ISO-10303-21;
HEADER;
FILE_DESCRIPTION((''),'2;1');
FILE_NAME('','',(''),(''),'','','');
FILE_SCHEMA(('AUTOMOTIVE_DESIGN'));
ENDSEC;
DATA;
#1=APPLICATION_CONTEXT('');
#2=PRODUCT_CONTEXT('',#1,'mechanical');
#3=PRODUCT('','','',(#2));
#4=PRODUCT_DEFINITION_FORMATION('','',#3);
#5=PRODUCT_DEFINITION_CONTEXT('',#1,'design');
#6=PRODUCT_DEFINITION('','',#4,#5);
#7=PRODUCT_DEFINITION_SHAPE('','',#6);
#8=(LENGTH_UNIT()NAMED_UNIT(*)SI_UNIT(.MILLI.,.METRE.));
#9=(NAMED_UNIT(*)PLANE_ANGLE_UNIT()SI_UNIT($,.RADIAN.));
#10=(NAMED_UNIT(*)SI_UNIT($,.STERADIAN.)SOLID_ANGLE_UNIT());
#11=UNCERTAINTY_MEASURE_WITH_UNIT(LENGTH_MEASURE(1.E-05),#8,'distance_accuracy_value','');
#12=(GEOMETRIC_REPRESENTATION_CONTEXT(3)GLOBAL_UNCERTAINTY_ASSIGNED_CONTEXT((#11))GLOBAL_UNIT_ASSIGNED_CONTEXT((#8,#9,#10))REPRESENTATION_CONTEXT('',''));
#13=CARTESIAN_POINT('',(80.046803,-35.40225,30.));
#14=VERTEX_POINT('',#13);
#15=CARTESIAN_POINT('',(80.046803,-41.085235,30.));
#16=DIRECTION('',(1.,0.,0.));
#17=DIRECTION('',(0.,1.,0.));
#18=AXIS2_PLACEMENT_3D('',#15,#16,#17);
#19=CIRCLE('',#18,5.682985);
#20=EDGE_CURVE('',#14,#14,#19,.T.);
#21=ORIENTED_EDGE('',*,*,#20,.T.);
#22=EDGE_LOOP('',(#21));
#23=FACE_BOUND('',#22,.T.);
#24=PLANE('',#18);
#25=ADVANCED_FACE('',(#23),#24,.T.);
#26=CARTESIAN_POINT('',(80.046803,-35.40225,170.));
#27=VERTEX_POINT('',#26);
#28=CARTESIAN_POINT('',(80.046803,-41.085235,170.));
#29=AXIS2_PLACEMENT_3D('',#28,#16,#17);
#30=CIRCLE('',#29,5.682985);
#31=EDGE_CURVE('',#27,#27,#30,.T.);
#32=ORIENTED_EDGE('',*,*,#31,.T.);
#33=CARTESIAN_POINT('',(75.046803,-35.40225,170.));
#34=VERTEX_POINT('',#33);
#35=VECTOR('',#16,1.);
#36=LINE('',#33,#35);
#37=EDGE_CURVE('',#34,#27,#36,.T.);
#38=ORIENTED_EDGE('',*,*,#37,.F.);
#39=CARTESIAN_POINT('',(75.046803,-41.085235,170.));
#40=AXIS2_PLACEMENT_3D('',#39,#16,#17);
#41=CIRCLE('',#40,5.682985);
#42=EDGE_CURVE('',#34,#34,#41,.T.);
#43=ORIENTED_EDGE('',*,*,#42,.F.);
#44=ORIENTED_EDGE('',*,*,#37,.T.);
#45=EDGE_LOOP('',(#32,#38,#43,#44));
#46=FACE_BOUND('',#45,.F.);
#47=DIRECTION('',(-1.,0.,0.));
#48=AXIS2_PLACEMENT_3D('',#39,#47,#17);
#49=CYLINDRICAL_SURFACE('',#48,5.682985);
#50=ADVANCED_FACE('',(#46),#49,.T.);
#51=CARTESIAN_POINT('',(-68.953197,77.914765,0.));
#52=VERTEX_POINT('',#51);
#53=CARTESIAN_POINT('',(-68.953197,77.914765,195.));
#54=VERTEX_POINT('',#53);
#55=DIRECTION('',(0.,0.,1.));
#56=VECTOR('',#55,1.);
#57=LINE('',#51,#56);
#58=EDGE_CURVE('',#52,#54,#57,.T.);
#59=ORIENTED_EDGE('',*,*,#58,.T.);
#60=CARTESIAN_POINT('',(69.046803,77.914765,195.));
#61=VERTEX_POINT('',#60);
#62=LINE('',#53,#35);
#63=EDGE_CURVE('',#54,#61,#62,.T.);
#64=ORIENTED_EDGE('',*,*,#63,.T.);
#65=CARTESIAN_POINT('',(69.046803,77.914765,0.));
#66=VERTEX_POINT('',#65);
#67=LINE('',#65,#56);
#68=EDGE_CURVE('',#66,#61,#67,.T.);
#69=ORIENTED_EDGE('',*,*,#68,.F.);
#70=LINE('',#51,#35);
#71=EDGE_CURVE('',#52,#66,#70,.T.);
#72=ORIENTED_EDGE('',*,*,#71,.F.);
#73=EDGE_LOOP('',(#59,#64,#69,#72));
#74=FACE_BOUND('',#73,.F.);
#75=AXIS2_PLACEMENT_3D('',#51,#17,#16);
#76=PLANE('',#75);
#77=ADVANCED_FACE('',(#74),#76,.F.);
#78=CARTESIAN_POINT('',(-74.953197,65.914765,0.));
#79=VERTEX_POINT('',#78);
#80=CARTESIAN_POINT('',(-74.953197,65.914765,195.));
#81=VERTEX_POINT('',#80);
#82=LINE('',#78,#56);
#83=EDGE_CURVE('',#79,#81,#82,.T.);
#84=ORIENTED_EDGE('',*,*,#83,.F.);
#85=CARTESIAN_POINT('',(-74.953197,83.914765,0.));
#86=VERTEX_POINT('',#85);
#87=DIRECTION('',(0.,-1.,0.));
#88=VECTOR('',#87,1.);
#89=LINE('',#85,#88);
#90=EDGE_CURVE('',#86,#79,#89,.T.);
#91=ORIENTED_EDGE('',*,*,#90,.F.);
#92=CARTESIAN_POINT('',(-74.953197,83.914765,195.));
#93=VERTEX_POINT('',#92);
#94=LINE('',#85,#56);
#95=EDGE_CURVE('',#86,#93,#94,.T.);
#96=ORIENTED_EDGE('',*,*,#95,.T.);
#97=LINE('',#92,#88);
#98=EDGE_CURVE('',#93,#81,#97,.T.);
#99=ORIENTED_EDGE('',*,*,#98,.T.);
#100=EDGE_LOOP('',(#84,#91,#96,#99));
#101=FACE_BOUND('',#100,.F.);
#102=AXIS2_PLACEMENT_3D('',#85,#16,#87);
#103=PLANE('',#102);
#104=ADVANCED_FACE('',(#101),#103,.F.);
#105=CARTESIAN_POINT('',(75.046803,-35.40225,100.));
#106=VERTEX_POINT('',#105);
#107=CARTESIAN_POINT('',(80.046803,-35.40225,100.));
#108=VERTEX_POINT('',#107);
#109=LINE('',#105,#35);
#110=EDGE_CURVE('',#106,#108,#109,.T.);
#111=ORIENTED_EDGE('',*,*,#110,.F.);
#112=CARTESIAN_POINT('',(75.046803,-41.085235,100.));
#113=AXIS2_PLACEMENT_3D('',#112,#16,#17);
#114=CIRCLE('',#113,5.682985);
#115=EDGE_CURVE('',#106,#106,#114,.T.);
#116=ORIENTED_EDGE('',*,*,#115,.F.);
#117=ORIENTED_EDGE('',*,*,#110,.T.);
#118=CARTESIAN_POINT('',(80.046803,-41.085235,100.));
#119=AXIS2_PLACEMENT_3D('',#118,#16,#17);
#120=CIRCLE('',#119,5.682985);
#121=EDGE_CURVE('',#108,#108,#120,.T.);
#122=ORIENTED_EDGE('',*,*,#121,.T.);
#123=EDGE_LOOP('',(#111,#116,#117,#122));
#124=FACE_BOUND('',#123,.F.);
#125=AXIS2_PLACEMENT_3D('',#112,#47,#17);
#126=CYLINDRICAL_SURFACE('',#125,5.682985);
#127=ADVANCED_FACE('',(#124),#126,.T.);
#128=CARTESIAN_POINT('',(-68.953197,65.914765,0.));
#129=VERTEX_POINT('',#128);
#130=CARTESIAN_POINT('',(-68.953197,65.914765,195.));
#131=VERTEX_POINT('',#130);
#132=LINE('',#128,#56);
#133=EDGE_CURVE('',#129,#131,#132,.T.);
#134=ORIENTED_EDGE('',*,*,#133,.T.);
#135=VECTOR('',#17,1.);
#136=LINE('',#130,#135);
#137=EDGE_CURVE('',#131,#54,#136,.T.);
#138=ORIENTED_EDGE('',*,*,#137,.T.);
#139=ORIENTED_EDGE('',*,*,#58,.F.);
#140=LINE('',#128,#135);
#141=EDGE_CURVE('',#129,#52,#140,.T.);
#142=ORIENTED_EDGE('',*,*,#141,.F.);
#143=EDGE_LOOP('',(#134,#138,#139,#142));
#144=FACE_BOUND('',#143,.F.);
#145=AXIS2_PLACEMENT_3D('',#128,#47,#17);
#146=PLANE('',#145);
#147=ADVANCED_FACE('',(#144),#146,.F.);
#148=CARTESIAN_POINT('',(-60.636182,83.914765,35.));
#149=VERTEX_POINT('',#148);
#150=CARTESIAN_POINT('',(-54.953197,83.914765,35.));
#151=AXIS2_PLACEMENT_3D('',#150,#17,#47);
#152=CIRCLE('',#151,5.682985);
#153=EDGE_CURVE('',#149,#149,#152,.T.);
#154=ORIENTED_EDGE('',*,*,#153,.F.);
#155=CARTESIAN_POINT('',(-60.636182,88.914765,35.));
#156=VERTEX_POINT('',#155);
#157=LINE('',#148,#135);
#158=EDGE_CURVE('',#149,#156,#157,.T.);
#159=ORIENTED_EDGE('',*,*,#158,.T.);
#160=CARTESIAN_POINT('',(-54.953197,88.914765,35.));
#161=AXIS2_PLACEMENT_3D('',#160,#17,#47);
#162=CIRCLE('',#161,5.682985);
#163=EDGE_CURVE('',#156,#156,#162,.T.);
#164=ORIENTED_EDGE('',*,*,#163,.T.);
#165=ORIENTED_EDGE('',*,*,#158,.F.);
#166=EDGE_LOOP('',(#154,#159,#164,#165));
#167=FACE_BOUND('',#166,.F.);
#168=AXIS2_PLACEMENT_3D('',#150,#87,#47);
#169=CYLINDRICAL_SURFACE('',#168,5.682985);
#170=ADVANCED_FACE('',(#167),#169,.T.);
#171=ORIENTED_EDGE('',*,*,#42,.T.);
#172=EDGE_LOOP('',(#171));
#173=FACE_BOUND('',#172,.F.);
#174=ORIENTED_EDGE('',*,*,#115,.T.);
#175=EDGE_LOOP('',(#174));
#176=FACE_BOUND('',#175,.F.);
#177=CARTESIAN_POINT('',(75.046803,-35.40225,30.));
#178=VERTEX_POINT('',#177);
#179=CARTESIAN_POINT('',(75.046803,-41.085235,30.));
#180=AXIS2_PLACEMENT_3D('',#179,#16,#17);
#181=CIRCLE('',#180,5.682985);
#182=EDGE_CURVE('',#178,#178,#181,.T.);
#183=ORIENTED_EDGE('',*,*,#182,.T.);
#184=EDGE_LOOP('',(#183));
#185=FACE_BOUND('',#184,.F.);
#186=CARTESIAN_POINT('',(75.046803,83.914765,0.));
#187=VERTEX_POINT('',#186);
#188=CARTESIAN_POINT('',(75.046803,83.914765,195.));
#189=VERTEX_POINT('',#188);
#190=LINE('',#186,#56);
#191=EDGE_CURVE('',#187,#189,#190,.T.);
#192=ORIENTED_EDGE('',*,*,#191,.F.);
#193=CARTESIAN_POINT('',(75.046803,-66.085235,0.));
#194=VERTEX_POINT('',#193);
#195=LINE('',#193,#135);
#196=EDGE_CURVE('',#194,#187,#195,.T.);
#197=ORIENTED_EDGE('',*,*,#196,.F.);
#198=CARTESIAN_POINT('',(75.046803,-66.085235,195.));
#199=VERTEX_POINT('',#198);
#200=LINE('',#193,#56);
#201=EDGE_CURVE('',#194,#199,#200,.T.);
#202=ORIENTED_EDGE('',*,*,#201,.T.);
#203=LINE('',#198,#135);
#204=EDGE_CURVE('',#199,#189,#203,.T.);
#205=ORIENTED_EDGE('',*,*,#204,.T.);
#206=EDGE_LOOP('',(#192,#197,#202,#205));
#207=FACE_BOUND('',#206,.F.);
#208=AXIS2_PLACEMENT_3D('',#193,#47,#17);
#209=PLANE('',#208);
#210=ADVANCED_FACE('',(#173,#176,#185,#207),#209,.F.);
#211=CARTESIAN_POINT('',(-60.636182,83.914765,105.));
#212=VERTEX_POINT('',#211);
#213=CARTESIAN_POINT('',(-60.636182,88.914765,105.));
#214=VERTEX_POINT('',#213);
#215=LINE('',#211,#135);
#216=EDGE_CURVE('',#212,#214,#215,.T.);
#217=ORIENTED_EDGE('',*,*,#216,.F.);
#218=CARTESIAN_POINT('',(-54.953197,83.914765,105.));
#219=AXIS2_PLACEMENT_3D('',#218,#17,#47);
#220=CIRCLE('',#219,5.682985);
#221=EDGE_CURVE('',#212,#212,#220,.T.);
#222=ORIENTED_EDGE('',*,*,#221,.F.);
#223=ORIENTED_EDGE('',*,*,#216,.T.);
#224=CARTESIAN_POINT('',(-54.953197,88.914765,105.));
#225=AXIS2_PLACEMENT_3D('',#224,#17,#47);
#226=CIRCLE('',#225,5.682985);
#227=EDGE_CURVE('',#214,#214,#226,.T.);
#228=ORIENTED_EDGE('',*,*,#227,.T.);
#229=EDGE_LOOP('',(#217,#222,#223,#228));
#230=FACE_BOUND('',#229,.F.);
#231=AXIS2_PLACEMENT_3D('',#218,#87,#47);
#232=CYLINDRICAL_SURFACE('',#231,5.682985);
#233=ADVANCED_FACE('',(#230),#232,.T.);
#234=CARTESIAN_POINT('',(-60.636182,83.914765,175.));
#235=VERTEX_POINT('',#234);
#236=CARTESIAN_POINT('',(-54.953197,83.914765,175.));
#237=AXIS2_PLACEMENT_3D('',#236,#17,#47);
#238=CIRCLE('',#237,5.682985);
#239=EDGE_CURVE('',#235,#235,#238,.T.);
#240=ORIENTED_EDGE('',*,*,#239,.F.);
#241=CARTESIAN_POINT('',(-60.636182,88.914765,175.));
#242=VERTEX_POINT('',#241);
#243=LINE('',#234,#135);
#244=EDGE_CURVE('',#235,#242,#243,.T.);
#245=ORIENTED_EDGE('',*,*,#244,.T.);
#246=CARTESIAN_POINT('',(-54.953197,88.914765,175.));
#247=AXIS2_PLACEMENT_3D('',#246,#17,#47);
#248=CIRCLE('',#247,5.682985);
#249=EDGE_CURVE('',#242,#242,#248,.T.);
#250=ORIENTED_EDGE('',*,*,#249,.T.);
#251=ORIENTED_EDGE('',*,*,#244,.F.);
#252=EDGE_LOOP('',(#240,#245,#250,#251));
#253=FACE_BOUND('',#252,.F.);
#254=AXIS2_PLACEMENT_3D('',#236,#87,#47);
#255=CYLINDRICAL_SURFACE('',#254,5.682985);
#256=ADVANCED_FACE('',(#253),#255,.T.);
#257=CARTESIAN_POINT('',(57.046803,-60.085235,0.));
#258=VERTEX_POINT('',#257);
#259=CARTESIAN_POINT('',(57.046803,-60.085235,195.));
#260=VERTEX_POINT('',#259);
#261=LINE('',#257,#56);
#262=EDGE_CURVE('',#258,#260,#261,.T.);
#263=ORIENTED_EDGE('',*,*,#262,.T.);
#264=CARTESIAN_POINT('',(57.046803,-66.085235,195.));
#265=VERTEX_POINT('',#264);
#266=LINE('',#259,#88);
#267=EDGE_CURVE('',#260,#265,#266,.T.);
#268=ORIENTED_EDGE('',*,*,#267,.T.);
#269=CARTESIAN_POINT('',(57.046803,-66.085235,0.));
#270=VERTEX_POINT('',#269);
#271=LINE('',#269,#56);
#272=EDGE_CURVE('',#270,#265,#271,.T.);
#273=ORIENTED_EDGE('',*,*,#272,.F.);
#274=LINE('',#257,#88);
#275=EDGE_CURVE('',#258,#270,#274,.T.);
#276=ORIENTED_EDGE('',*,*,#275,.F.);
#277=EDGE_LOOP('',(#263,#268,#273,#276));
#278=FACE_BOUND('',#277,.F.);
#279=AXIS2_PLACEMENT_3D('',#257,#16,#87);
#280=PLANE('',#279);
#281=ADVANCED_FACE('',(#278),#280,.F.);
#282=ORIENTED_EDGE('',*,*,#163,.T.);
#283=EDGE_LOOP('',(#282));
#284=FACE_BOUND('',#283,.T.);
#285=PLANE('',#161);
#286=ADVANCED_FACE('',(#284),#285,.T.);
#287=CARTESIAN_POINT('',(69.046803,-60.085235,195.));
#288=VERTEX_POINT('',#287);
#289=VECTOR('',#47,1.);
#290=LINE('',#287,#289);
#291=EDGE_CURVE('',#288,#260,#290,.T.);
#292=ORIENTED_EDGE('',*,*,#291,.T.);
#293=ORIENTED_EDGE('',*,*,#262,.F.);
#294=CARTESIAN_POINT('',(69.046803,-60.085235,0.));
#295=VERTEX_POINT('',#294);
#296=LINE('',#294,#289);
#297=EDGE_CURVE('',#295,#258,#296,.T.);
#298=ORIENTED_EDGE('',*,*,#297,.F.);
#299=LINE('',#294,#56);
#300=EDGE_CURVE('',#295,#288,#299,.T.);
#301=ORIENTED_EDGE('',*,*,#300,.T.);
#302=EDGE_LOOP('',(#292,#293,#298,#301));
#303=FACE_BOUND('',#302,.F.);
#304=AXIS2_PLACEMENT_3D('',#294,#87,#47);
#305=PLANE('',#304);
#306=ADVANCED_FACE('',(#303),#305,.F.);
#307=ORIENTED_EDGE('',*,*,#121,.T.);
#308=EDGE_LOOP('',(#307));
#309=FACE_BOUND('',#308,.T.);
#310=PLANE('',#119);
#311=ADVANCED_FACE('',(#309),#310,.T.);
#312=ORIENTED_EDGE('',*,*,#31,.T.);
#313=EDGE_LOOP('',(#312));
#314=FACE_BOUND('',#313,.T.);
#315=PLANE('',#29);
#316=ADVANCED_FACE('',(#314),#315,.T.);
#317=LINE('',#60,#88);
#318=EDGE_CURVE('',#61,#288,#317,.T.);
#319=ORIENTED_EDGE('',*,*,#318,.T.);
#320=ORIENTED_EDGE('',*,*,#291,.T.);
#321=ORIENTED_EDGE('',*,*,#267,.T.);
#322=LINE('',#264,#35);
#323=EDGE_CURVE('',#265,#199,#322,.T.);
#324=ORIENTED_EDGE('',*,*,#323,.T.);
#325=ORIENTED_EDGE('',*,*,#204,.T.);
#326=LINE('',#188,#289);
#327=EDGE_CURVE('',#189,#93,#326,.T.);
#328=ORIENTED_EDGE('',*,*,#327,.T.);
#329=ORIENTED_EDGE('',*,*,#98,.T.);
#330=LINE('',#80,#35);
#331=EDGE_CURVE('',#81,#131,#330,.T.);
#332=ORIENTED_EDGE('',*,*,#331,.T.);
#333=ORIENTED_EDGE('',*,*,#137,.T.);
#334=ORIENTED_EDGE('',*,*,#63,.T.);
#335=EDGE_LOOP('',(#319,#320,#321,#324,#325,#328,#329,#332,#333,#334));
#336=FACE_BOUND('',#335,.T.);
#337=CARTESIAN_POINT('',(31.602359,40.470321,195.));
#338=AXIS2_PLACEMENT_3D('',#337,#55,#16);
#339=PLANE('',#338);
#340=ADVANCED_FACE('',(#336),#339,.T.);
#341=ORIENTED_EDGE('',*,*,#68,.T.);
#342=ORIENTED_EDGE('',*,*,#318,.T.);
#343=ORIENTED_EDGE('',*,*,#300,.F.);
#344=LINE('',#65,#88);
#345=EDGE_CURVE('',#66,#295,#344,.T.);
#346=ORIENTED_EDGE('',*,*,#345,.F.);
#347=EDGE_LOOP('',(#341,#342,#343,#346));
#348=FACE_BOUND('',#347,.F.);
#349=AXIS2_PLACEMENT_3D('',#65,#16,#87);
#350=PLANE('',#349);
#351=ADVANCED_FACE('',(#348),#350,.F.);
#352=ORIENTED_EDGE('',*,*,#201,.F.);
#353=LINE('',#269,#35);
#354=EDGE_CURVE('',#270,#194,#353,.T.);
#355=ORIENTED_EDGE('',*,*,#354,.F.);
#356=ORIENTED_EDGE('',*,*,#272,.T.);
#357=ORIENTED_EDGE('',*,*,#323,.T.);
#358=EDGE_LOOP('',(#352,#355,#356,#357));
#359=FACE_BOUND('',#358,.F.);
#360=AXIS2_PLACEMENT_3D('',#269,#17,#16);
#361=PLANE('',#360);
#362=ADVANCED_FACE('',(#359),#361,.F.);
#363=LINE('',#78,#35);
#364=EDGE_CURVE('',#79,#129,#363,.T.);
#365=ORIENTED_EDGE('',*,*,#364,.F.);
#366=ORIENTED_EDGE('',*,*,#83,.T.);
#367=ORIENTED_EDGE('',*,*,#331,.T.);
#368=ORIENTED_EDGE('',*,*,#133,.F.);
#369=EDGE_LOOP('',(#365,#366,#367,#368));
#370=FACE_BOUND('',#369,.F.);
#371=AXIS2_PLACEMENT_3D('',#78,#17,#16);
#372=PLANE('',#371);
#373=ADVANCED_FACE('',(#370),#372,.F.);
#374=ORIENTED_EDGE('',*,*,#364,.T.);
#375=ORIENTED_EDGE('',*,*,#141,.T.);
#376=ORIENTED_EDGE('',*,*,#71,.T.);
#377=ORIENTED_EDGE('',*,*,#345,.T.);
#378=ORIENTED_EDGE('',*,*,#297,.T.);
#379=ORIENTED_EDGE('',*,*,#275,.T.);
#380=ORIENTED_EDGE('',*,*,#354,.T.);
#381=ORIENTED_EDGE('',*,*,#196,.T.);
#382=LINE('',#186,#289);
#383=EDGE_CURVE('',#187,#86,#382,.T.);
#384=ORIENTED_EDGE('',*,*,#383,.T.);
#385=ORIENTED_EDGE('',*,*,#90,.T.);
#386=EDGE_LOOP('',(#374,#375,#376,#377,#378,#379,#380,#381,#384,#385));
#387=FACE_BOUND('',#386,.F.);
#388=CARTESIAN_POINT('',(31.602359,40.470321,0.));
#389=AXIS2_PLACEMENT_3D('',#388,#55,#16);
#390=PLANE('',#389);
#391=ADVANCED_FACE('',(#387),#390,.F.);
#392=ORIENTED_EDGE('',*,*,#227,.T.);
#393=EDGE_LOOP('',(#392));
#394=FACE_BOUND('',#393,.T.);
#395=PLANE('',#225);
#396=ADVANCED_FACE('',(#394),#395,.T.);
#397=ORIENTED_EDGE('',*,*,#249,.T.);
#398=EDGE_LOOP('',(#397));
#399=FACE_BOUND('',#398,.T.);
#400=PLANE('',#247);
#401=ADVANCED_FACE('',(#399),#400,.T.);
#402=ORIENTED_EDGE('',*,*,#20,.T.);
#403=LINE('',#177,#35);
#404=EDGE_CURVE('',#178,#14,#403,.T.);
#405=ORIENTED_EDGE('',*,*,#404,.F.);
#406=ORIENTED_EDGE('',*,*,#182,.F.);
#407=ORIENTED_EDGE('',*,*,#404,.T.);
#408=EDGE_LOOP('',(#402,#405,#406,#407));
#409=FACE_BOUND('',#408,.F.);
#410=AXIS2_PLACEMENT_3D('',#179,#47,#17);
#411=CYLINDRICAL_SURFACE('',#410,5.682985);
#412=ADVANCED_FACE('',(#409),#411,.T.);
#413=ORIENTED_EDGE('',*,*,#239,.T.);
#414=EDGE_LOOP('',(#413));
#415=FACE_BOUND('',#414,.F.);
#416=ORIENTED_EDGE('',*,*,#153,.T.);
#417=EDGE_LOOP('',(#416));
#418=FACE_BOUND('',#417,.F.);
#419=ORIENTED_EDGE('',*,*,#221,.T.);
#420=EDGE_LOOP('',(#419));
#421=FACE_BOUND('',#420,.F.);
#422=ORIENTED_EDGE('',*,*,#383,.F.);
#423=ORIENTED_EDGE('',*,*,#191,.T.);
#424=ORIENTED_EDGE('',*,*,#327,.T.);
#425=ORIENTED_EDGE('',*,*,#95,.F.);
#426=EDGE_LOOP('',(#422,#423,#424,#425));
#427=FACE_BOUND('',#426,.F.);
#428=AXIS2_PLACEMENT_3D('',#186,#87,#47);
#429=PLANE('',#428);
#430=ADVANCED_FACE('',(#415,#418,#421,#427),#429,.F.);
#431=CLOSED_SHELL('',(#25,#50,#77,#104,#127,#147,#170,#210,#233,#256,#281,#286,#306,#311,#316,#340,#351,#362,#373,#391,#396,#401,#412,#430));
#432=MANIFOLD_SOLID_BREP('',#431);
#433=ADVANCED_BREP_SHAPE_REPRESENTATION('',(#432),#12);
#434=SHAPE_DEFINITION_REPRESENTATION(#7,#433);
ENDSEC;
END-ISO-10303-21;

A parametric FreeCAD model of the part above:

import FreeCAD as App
import Part
import Sketcher
from FreeCAD import Vector
Q = App.Units.Quantity

doc = App.newDocument("Part")
params = doc.addObject("Spreadsheet::Sheet", "Params")
for row, (alias, value) in enumerate([
    ("sketch1_width", "150 mm"),
    ("sketch1_width2", "6 mm"),
    ("sketch1_width3", "138 mm"),
    ("sketch1_width4", "12 mm"),
    ("pad1_length", "195 mm"),
    ("pad2_length", "5 mm"),
    ("pad3_length", "5 mm"),
], start=1):
    params.set(f"A{row}", alias)
    params.set(f"B{row}", "=" + value)
    params.setAlias(f"B{row}", alias)

body = doc.addObject("PartDesign::Body", "Body")

sketch1 = body.newObject("Sketcher::SketchObject", "Sketch")
sketch1.AttachmentSupport = (doc.getObject("XY_Plane"), [""])
sketch1.MapMode = "FlatFace"
sketch1.addGeometry(Part.LineSegment(Vector(75, 84, 0), Vector(-75, 84, 0)), False)
sketch1.addGeometry(Part.LineSegment(Vector(-75, 84, 0), Vector(-75, 66, 0)), False)
sketch1.addGeometry(Part.LineSegment(Vector(-75, 66, 0), Vector(-69, 66, 0)), False)
sketch1.addGeometry(Part.LineSegment(Vector(-69, 66, 0), Vector(-69, 78, 0)), False)
sketch1.addGeometry(Part.LineSegment(Vector(-69, 78, 0), Vector(69, 78, 0)), False)
sketch1.addGeometry(Part.LineSegment(Vector(69, 78, 0), Vector(69, -60, 0)), False)
sketch1.addGeometry(Part.LineSegment(Vector(69, -60, 0), Vector(57, -60, 0)), False)
sketch1.addGeometry(Part.LineSegment(Vector(57, -60, 0), Vector(57, -66, 0)), False)
sketch1.addGeometry(Part.LineSegment(Vector(57, -66, 0), Vector(75, -66, 0)), False)
sketch1.addGeometry(Part.LineSegment(Vector(75, -66, 0), Vector(75, 84, 0)), False)
sketch1.addConstraint(Sketcher.Constraint("Coincident", 0, 2, 1, 1))
sketch1.addConstraint(Sketcher.Constraint("Coincident", 1, 2, 2, 1))
sketch1.addConstraint(Sketcher.Constraint("Coincident", 2, 2, 3, 1))
sketch1.addConstraint(Sketcher.Constraint("Coincident", 3, 2, 4, 1))
sketch1.addConstraint(Sketcher.Constraint("Coincident", 4, 2, 5, 1))
sketch1.addConstraint(Sketcher.Constraint("Coincident", 5, 2, 6, 1))
sketch1.addConstraint(Sketcher.Constraint("Coincident", 6, 2, 7, 1))
sketch1.addConstraint(Sketcher.Constraint("Coincident", 7, 2, 8, 1))
sketch1.addConstraint(Sketcher.Constraint("Coincident", 8, 2, 9, 1))
sketch1.addConstraint(Sketcher.Constraint("Coincident", 9, 2, 0, 1))
sketch1.addConstraint(Sketcher.Constraint("Horizontal", 0))
sketch1.addConstraint(Sketcher.Constraint("Vertical", 1))
sketch1.addConstraint(Sketcher.Constraint("Horizontal", 2))
sketch1.addConstraint(Sketcher.Constraint("Vertical", 3))
sketch1.addConstraint(Sketcher.Constraint("Horizontal", 4))
sketch1.addConstraint(Sketcher.Constraint("Vertical", 5))
sketch1.addConstraint(Sketcher.Constraint("Horizontal", 6))
sketch1.addConstraint(Sketcher.Constraint("Vertical", 7))
sketch1.addConstraint(Sketcher.Constraint("Horizontal", 8))
sketch1.addConstraint(Sketcher.Constraint("Vertical", 9))
sketch1.addConstraint(Sketcher.Constraint("Equal", 8, 1))
sketch1.addConstraint(Sketcher.Constraint("Equal", 6, 3))
sketch1.addConstraint(Sketcher.Constraint("Equal", 4, 5))
sketch1.addConstraint(Sketcher.Constraint("Equal", 2, 7))
sketch1.addConstraint(Sketcher.Constraint("DistanceX", 0, 2, 0, 1, Q("150 mm")))
sketch1.addConstraint(Sketcher.Constraint("DistanceX", 2, 1, 2, 2, Q("6 mm")))
sketch1.addConstraint(Sketcher.Constraint("DistanceX", 4, 1, 4, 2, Q("138 mm")))
sketch1.addConstraint(Sketcher.Constraint("DistanceX", 6, 2, 6, 1, Q("12 mm")))
sketch1.addConstraint(Sketcher.Constraint("DistanceX", 0, 2, -1, 1, Q("74.953197 mm")))
sketch1.addConstraint(Sketcher.Constraint("DistanceY", -1, 1, 0, 2, Q("83.914765 mm")))
sketch1.setExpression("Constraints[24]", "Params.sketch1_width")
sketch1.setExpression("Constraints[25]", "Params.sketch1_width2")
sketch1.setExpression("Constraints[26]", "Params.sketch1_width3")
sketch1.setExpression("Constraints[27]", "Params.sketch1_width4")
pad1 = body.newObject("PartDesign::Pad", "Pad")
pad1.Profile = sketch1
pad1.setExpression("Length", "Params.pad1_length")

sketch2 = body.newObject("Sketcher::SketchObject", "Sketch001")
sketch2.AttachmentSupport = (doc.getObject("YZ_Plane"), [""])
sketch2.MapMode = "FlatFace"
sketch2.AttachmentOffset = App.Placement(Vector(0, 0, 75.046803), App.Rotation())
sketch2.addGeometry(Part.Circle(Vector(-41, 170, 0), Vector(0, 0, 1), 6), False)
sketch2.addGeometry(Part.Circle(Vector(-41, 100, 0), Vector(0, 0, 1), 6), False)
sketch2.addGeometry(Part.Circle(Vector(-41, 30, 0), Vector(0, 0, 1), 6), False)
sketch2.addConstraint(Sketcher.Constraint("Equal", 0, 1))
sketch2.addConstraint(Sketcher.Constraint("Equal", 1, 2))
sketch2.addConstraint(Sketcher.Constraint("Vertical", 0, 3, 1, 3))
sketch2.addConstraint(Sketcher.Constraint("Vertical", 1, 3, 2, 3))
sketch2.addConstraint(Sketcher.Constraint("DistanceY", -1, 1, 0, 3, Q("170 mm")))
sketch2.addConstraint(Sketcher.Constraint("DistanceY", -1, 1, 1, 3, Q("100 mm")))
sketch2.addConstraint(Sketcher.Constraint("DistanceY", -1, 1, 2, 3, Q("30 mm")))
sketch2.addConstraint(Sketcher.Constraint("Diameter", 0, Q("11.36597 mm")))
sketch2.addConstraint(Sketcher.Constraint("DistanceX", 0, 3, -1, 1, Q("41.085235 mm")))
pad2 = body.newObject("PartDesign::Pad", "Pad001")
pad2.Profile = sketch2
pad2.setExpression("Length", "Params.pad2_length")

sketch3 = body.newObject("Sketcher::SketchObject", "Sketch002")
sketch3.AttachmentSupport = (doc.getObject("XZ_Plane"), [""])
sketch3.MapMode = "FlatFace"
sketch3.AttachmentOffset = App.Placement(Vector(0, 0, -83.914765), App.Rotation())
sketch3.addGeometry(Part.Circle(Vector(-55, 175, 0), Vector(0, 0, 1), 6), False)
sketch3.addGeometry(Part.Circle(Vector(-55, 105, 0), Vector(0, 0, 1), 6), False)
sketch3.addGeometry(Part.Circle(Vector(-55, 35, 0), Vector(0, 0, 1), 6), False)
sketch3.addConstraint(Sketcher.Constraint("Equal", 0, 1))
sketch3.addConstraint(Sketcher.Constraint("Equal", 1, 2))
sketch3.addConstraint(Sketcher.Constraint("Vertical", 0, 3, 1, 3))
sketch3.addConstraint(Sketcher.Constraint("Vertical", 1, 3, 2, 3))
sketch3.addConstraint(Sketcher.Constraint("DistanceY", -1, 1, 0, 3, Q("175 mm")))
sketch3.addConstraint(Sketcher.Constraint("DistanceY", -1, 1, 1, 3, Q("105 mm")))
sketch3.addConstraint(Sketcher.Constraint("DistanceY", -1, 1, 2, 3, Q("35 mm")))
sketch3.addConstraint(Sketcher.Constraint("Diameter", 0, Q("11.36597 mm")))
sketch3.addConstraint(Sketcher.Constraint("DistanceX", 0, 3, -1, 1, Q("54.953197 mm")))
pad3 = body.newObject("PartDesign::Pad", "Pad002")
pad3.Profile = sketch3
pad3.setExpression("Length", "Params.pad3_length")
pad3.Reversed = True

doc.recompute()
